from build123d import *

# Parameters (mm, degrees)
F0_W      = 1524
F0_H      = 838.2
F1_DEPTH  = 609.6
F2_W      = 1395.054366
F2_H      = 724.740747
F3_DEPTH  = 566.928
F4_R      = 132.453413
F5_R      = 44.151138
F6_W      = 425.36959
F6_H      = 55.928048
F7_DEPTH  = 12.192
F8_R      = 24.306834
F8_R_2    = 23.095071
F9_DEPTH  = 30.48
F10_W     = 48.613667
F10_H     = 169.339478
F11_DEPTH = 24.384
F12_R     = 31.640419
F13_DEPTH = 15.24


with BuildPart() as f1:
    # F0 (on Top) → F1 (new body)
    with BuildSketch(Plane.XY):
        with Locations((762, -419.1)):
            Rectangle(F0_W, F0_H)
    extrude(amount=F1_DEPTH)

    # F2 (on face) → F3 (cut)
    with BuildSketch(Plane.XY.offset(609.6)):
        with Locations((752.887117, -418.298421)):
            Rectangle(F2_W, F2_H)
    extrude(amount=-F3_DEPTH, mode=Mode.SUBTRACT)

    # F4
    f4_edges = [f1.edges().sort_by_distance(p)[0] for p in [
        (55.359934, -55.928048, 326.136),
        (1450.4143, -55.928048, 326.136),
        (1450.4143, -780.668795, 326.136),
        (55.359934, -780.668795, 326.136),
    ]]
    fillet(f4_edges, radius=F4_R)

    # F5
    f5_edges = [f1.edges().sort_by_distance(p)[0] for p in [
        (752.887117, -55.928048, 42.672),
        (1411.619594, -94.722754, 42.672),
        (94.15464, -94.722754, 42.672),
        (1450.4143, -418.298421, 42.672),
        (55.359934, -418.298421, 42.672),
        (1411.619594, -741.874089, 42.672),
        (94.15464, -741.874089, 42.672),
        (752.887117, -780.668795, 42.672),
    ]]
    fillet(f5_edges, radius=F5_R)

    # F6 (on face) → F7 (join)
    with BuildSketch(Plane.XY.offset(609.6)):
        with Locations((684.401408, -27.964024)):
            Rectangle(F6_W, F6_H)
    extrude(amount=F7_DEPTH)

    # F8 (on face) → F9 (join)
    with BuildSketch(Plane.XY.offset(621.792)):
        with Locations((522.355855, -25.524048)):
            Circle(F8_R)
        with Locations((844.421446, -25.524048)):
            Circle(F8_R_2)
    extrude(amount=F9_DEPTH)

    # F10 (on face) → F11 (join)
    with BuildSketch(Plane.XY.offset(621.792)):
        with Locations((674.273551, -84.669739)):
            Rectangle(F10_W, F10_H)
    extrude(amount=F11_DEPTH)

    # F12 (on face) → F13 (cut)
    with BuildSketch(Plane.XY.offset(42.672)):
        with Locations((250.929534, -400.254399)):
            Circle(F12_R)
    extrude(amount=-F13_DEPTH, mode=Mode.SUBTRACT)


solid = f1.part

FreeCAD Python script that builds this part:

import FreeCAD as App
import Part
import Sketcher

V = App.Vector
Q = App.Units.Quantity


def edges_at(feature, points):
    """Names of the edges that pass closest to the given points."""
    edges = feature.Shape.Edges
    near = lambda p: min(range(len(edges)), key=lambda i: edges[i].distToShape(Part.Vertex(*p))[0])
    return sorted({f"Edge{near(p) + 1}" for p in points})


def add_polygon(sketch, points):
    """Adds a closed chain of lines whose ends are joined by coincident constraints."""
    first, n = sketch.GeometryCount, len(points)
    for a, b in zip(points, points[1:] + points[:1]):
        sketch.addGeometry(Part.LineSegment(App.Vector(*a, 0), App.Vector(*b, 0)), False)
    for i in range(n):
        sketch.addConstraint(Sketcher.Constraint("Coincident", first + i, 2, first + (i + 1) % n, 1))

doc = App.newDocument("Part")
body = doc.addObject("PartDesign::Body", "Body")

# Sketch on XY plane
sketch1 = body.newObject("Sketcher::SketchObject", "Sketch")
sketch1.AttachmentSupport = (doc.getObject("XY_Plane"), [""])
sketch1.MapMode = "FlatFace"
add_polygon(sketch1, [(0, 0), (0, -838), (1524, -838), (1524, 0)])  # lines 0-3
sketch1.addConstraint([
    Sketcher.Constraint("Vertical", 0),
    Sketcher.Constraint("Horizontal", 1),
    Sketcher.Constraint("Vertical", 2),
    Sketcher.Constraint("Horizontal", 3),
    Sketcher.Constraint("Coincident", 3, 2, -1, 1),
    Sketcher.Constraint("DistanceX", 1, 1, 1, 2, Q("60 in")),
    Sketcher.Constraint("DistanceY", 0, 2, 0, 1, Q("33 in")),
])
pad1 = body.newObject("PartDesign::Pad", "Pad")
pad1.Profile = sketch1
pad1.Length = Q("24 in")

# Sketch on XY plane
sketch2 = body.newObject("Sketcher::SketchObject", "Sketch001")
sketch2.AttachmentSupport = (doc.getObject("XY_Plane"), [""])
sketch2.MapMode = "FlatFace"
sketch2.AttachmentOffset = App.Placement(V(0, 0, 24 * 25.4), App.Rotation())
add_polygon(sketch2, [(55, -56), (55, -781), (1450, -781), (1450, -56)])  # lines 0-3
sketch2.addConstraint([
    Sketcher.Constraint("Vertical", 0),
    Sketcher.Constraint("Horizontal", 1),
    Sketcher.Constraint("Vertical", 2),
    Sketcher.Constraint("Horizontal", 3),
    Sketcher.Constraint("DistanceX", -1, 1, 1, 2, 1450.4143),
    Sketcher.Constraint("DistanceX", 1, 1, 1, 2, 1395.054366),
    Sketcher.Constraint("DistanceY", 0, 2, 0, 1, 724.740747),
    Sketcher.Constraint("DistanceY", 0, 2, -1, 1, 780.668794),
])
pocket1 = body.newObject("PartDesign::Pocket", "Pocket")
pocket1.Profile = sketch2
pocket1.Length = Q("22.32 in")
doc.recompute()

fillet = body.newObject("PartDesign::Fillet", "Fillet")
fillet.Base = (pocket1, edges_at(pocket1, [
    (55.36, -55.928, 326.136),
    (1450.414, -55.928, 326.136),
    (1450.414, -780.669, 326.136),
    (55.36, -780.669, 326.136),
]))
fillet.Radius = 132.453413
doc.recompute()

fillet2 = body.newObject("PartDesign::Fillet", "Fillet001")
fillet2.Base = (fillet, edges_at(fillet, [
    (752.887, -55.928, 42.672),
    (1411.62, -94.723, 42.672),
    (94.155, -94.723, 42.672),
    (1450.414, -418.298, 42.672),
    (55.36, -418.298, 42.672),
    (1411.62, -741.874, 42.672),
    (94.155, -741.874, 42.672),
    (752.887, -780.669, 42.672),
]))
fillet2.Radius = 44.151138

# Sketch on XY plane
sketch3 = body.newObject("Sketcher::SketchObject", "Sketch002")
sketch3.AttachmentSupport = (doc.getObject("XY_Plane"), [""])
sketch3.MapMode = "FlatFace"
sketch3.AttachmentOffset = App.Placement(V(0, 0, 24 * 25.4), App.Rotation())
add_polygon(sketch3, [(472, 0), (472, -56), (897, -56), (897, 0)])  # lines 0-3
sketch3.addConstraint([
    Sketcher.Constraint("Vertical", 0),
    Sketcher.Constraint("Horizontal", 1),
    Sketcher.Constraint("Vertical", 2),
    Sketcher.Constraint("Horizontal", 3),
    Sketcher.Constraint("PointOnObject", 2, 2, -1),
    Sketcher.Constraint("DistanceX", 1, 1, 1, 2, 425.36959),
    Sketcher.Constraint("DistanceY", 0, 2, 0, 1, 55.928048),
    Sketcher.Constraint("DistanceX", -1, 1, 0, 2, 471.716613),
])
pad2 = body.newObject("PartDesign::Pad", "Pad001")
pad2.Profile = sketch3
pad2.Length = Q("0.48 in")

# Sketch on XY plane
sketch4 = body.newObject("Sketcher::SketchObject", "Sketch003")
sketch4.AttachmentSupport = (doc.getObject("XY_Plane"), [""])
sketch4.MapMode = "FlatFace"
sketch4.AttachmentOffset = App.Placement(V(0, 0, 24.48 * 25.4), App.Rotation())
sketch4.addGeometry([
    Part.Circle(V(522, -26, 0), V(0, 0, 1), 24),
    Part.Circle(V(844, -26, 0), V(0, 0, 1), 23),
], False)
sketch4.addConstraint([
    Sketcher.Constraint("Horizontal", 0, 3, 1, 3),
    Sketcher.Constraint("Diameter", 0, 48.613668),
    Sketcher.Constraint("Diameter", 1, 46.190142),
    Sketcher.Constraint("DistanceY", 0, 3, -1, 1, 25.524048),
    Sketcher.Constraint("DistanceX", 0, 3, 1, 3, 322.065591),
    Sketcher.Constraint("DistanceX", -1, 1, 0, 3, 522.355855),
])
pad3 = body.newObject("PartDesign::Pad", "Pad002")
pad3.Profile = sketch4
pad3.Length = Q("1.2 in")

# Sketch on XY plane
sketch5 = body.newObject("Sketcher::SketchObject", "Sketch004")
sketch5.AttachmentSupport = (doc.getObject("XY_Plane"), [""])
sketch5.MapMode = "FlatFace"
sketch5.AttachmentOffset = App.Placement(V(0, 0, 24.48 * 25.4), App.Rotation())
add_polygon(sketch5, [(650, 0), (650, -169), (699, -169), (699, 0)])  # lines 0-3
sketch5.addConstraint([
    Sketcher.Constraint("Vertical", 0),
    Sketcher.Constraint("Horizontal", 1),
    Sketcher.Constraint("Vertical", 2),
    Sketcher.Constraint("Horizontal", 3),
    Sketcher.Constraint("PointOnObject", 2, 2, -1),
    Sketcher.Constraint("DistanceY", 0, 2, 0, 1, 169.339478),
    Sketcher.Constraint("DistanceX", 1, 1, 1, 2, 48.613667),
    Sketcher.Constraint("DistanceX", -1, 1, 0, 2, 649.966717),
])
pad4 = body.newObject("PartDesign::Pad", "Pad003")
pad4.Profile = sketch5
pad4.Length = Q("0.96 in")

# Sketch on XY plane
sketch6 = body.newObject("Sketcher::SketchObject", "Sketch005")
sketch6.AttachmentSupport = (doc.getObject("XY_Plane"), [""])
sketch6.MapMode = "FlatFace"
sketch6.AttachmentOffset = App.Placement(V(0, 0, 1.68 * 25.4), App.Rotation())
sketch6.addGeometry(Part.Circle(V(251, -400, 0), V(0, 0, 1), 32), False)
sketch6.addConstraint([
    Sketcher.Constraint("Diameter", 0, 63.280838),
    Sketcher.Constraint("DistanceY", 0, 3, -1, 1, 400.254399),
    Sketcher.Constraint("DistanceX", -1, 1, 0, 3, 250.929534),
])
pocket2 = body.newObject("PartDesign::Pocket", "Pocket001")
pocket2.Profile = sketch6
pocket2.Length = Q("0.6 in")

doc.recompute()
